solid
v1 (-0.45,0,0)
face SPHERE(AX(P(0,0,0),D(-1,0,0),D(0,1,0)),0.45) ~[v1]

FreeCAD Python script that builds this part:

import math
import FreeCAD as App
import Part
import Sketcher

doc = App.newDocument("Part")
params = doc.addObject("Spreadsheet::Sheet", "Params")
for row, (alias, value) in enumerate([
    ("sketch1_radius", "0.45 mm"),
    ("revolution_angle", "360 deg"),
], start=1):
    params.set(f"A{row}", alias)
    params.set(f"B{row}", "=" + value)
    params.setAlias(f"B{row}", alias)

body = doc.addObject("PartDesign::Body", "Body")

sketch1 = body.newObject("Sketcher::SketchObject", "Sketch")
sketch1.AttachmentSupport = (doc.getObject("XY_Plane"), [""])
sketch1.MapMode = "FlatFace"
sketch1.addGeometry([
    Part.LineSegment(App.Vector(-0.45, 0, 0), App.Vector(0.45, 0, 0)),
    Part.ArcOfCircle(Part.Circle(App.Vector(0, 0, 0), App.Vector(0, 0, 1), 0.45), math.radians(0), math.radians(180)),
], False)
sketch1.addConstraint([
    Sketcher.Constraint("Coincident", 0, 1, 1, 2),
    Sketcher.Constraint("Coincident", 1, 1, 0, 2),
    Sketcher.Constraint("Horizontal", 0),
    Sketcher.Constraint("Coincident", 1, 3, -1, 1),
    Sketcher.Constraint("PointOnObject", 0, 1, -1),
    Sketcher.Constraint("Radius", 1, 0.45),
])
sketch1.setExpression("Constraints[5]", "Params.sketch1_radius")
revolution = body.newObject("PartDesign::Revolution", "Revolution")
revolution.Profile = sketch1
revolution.ReferenceAxis = (sketch1, ["H_Axis"])
revolution.setExpression("Angle", "Params.revolution_angle")

doc.recompute()
